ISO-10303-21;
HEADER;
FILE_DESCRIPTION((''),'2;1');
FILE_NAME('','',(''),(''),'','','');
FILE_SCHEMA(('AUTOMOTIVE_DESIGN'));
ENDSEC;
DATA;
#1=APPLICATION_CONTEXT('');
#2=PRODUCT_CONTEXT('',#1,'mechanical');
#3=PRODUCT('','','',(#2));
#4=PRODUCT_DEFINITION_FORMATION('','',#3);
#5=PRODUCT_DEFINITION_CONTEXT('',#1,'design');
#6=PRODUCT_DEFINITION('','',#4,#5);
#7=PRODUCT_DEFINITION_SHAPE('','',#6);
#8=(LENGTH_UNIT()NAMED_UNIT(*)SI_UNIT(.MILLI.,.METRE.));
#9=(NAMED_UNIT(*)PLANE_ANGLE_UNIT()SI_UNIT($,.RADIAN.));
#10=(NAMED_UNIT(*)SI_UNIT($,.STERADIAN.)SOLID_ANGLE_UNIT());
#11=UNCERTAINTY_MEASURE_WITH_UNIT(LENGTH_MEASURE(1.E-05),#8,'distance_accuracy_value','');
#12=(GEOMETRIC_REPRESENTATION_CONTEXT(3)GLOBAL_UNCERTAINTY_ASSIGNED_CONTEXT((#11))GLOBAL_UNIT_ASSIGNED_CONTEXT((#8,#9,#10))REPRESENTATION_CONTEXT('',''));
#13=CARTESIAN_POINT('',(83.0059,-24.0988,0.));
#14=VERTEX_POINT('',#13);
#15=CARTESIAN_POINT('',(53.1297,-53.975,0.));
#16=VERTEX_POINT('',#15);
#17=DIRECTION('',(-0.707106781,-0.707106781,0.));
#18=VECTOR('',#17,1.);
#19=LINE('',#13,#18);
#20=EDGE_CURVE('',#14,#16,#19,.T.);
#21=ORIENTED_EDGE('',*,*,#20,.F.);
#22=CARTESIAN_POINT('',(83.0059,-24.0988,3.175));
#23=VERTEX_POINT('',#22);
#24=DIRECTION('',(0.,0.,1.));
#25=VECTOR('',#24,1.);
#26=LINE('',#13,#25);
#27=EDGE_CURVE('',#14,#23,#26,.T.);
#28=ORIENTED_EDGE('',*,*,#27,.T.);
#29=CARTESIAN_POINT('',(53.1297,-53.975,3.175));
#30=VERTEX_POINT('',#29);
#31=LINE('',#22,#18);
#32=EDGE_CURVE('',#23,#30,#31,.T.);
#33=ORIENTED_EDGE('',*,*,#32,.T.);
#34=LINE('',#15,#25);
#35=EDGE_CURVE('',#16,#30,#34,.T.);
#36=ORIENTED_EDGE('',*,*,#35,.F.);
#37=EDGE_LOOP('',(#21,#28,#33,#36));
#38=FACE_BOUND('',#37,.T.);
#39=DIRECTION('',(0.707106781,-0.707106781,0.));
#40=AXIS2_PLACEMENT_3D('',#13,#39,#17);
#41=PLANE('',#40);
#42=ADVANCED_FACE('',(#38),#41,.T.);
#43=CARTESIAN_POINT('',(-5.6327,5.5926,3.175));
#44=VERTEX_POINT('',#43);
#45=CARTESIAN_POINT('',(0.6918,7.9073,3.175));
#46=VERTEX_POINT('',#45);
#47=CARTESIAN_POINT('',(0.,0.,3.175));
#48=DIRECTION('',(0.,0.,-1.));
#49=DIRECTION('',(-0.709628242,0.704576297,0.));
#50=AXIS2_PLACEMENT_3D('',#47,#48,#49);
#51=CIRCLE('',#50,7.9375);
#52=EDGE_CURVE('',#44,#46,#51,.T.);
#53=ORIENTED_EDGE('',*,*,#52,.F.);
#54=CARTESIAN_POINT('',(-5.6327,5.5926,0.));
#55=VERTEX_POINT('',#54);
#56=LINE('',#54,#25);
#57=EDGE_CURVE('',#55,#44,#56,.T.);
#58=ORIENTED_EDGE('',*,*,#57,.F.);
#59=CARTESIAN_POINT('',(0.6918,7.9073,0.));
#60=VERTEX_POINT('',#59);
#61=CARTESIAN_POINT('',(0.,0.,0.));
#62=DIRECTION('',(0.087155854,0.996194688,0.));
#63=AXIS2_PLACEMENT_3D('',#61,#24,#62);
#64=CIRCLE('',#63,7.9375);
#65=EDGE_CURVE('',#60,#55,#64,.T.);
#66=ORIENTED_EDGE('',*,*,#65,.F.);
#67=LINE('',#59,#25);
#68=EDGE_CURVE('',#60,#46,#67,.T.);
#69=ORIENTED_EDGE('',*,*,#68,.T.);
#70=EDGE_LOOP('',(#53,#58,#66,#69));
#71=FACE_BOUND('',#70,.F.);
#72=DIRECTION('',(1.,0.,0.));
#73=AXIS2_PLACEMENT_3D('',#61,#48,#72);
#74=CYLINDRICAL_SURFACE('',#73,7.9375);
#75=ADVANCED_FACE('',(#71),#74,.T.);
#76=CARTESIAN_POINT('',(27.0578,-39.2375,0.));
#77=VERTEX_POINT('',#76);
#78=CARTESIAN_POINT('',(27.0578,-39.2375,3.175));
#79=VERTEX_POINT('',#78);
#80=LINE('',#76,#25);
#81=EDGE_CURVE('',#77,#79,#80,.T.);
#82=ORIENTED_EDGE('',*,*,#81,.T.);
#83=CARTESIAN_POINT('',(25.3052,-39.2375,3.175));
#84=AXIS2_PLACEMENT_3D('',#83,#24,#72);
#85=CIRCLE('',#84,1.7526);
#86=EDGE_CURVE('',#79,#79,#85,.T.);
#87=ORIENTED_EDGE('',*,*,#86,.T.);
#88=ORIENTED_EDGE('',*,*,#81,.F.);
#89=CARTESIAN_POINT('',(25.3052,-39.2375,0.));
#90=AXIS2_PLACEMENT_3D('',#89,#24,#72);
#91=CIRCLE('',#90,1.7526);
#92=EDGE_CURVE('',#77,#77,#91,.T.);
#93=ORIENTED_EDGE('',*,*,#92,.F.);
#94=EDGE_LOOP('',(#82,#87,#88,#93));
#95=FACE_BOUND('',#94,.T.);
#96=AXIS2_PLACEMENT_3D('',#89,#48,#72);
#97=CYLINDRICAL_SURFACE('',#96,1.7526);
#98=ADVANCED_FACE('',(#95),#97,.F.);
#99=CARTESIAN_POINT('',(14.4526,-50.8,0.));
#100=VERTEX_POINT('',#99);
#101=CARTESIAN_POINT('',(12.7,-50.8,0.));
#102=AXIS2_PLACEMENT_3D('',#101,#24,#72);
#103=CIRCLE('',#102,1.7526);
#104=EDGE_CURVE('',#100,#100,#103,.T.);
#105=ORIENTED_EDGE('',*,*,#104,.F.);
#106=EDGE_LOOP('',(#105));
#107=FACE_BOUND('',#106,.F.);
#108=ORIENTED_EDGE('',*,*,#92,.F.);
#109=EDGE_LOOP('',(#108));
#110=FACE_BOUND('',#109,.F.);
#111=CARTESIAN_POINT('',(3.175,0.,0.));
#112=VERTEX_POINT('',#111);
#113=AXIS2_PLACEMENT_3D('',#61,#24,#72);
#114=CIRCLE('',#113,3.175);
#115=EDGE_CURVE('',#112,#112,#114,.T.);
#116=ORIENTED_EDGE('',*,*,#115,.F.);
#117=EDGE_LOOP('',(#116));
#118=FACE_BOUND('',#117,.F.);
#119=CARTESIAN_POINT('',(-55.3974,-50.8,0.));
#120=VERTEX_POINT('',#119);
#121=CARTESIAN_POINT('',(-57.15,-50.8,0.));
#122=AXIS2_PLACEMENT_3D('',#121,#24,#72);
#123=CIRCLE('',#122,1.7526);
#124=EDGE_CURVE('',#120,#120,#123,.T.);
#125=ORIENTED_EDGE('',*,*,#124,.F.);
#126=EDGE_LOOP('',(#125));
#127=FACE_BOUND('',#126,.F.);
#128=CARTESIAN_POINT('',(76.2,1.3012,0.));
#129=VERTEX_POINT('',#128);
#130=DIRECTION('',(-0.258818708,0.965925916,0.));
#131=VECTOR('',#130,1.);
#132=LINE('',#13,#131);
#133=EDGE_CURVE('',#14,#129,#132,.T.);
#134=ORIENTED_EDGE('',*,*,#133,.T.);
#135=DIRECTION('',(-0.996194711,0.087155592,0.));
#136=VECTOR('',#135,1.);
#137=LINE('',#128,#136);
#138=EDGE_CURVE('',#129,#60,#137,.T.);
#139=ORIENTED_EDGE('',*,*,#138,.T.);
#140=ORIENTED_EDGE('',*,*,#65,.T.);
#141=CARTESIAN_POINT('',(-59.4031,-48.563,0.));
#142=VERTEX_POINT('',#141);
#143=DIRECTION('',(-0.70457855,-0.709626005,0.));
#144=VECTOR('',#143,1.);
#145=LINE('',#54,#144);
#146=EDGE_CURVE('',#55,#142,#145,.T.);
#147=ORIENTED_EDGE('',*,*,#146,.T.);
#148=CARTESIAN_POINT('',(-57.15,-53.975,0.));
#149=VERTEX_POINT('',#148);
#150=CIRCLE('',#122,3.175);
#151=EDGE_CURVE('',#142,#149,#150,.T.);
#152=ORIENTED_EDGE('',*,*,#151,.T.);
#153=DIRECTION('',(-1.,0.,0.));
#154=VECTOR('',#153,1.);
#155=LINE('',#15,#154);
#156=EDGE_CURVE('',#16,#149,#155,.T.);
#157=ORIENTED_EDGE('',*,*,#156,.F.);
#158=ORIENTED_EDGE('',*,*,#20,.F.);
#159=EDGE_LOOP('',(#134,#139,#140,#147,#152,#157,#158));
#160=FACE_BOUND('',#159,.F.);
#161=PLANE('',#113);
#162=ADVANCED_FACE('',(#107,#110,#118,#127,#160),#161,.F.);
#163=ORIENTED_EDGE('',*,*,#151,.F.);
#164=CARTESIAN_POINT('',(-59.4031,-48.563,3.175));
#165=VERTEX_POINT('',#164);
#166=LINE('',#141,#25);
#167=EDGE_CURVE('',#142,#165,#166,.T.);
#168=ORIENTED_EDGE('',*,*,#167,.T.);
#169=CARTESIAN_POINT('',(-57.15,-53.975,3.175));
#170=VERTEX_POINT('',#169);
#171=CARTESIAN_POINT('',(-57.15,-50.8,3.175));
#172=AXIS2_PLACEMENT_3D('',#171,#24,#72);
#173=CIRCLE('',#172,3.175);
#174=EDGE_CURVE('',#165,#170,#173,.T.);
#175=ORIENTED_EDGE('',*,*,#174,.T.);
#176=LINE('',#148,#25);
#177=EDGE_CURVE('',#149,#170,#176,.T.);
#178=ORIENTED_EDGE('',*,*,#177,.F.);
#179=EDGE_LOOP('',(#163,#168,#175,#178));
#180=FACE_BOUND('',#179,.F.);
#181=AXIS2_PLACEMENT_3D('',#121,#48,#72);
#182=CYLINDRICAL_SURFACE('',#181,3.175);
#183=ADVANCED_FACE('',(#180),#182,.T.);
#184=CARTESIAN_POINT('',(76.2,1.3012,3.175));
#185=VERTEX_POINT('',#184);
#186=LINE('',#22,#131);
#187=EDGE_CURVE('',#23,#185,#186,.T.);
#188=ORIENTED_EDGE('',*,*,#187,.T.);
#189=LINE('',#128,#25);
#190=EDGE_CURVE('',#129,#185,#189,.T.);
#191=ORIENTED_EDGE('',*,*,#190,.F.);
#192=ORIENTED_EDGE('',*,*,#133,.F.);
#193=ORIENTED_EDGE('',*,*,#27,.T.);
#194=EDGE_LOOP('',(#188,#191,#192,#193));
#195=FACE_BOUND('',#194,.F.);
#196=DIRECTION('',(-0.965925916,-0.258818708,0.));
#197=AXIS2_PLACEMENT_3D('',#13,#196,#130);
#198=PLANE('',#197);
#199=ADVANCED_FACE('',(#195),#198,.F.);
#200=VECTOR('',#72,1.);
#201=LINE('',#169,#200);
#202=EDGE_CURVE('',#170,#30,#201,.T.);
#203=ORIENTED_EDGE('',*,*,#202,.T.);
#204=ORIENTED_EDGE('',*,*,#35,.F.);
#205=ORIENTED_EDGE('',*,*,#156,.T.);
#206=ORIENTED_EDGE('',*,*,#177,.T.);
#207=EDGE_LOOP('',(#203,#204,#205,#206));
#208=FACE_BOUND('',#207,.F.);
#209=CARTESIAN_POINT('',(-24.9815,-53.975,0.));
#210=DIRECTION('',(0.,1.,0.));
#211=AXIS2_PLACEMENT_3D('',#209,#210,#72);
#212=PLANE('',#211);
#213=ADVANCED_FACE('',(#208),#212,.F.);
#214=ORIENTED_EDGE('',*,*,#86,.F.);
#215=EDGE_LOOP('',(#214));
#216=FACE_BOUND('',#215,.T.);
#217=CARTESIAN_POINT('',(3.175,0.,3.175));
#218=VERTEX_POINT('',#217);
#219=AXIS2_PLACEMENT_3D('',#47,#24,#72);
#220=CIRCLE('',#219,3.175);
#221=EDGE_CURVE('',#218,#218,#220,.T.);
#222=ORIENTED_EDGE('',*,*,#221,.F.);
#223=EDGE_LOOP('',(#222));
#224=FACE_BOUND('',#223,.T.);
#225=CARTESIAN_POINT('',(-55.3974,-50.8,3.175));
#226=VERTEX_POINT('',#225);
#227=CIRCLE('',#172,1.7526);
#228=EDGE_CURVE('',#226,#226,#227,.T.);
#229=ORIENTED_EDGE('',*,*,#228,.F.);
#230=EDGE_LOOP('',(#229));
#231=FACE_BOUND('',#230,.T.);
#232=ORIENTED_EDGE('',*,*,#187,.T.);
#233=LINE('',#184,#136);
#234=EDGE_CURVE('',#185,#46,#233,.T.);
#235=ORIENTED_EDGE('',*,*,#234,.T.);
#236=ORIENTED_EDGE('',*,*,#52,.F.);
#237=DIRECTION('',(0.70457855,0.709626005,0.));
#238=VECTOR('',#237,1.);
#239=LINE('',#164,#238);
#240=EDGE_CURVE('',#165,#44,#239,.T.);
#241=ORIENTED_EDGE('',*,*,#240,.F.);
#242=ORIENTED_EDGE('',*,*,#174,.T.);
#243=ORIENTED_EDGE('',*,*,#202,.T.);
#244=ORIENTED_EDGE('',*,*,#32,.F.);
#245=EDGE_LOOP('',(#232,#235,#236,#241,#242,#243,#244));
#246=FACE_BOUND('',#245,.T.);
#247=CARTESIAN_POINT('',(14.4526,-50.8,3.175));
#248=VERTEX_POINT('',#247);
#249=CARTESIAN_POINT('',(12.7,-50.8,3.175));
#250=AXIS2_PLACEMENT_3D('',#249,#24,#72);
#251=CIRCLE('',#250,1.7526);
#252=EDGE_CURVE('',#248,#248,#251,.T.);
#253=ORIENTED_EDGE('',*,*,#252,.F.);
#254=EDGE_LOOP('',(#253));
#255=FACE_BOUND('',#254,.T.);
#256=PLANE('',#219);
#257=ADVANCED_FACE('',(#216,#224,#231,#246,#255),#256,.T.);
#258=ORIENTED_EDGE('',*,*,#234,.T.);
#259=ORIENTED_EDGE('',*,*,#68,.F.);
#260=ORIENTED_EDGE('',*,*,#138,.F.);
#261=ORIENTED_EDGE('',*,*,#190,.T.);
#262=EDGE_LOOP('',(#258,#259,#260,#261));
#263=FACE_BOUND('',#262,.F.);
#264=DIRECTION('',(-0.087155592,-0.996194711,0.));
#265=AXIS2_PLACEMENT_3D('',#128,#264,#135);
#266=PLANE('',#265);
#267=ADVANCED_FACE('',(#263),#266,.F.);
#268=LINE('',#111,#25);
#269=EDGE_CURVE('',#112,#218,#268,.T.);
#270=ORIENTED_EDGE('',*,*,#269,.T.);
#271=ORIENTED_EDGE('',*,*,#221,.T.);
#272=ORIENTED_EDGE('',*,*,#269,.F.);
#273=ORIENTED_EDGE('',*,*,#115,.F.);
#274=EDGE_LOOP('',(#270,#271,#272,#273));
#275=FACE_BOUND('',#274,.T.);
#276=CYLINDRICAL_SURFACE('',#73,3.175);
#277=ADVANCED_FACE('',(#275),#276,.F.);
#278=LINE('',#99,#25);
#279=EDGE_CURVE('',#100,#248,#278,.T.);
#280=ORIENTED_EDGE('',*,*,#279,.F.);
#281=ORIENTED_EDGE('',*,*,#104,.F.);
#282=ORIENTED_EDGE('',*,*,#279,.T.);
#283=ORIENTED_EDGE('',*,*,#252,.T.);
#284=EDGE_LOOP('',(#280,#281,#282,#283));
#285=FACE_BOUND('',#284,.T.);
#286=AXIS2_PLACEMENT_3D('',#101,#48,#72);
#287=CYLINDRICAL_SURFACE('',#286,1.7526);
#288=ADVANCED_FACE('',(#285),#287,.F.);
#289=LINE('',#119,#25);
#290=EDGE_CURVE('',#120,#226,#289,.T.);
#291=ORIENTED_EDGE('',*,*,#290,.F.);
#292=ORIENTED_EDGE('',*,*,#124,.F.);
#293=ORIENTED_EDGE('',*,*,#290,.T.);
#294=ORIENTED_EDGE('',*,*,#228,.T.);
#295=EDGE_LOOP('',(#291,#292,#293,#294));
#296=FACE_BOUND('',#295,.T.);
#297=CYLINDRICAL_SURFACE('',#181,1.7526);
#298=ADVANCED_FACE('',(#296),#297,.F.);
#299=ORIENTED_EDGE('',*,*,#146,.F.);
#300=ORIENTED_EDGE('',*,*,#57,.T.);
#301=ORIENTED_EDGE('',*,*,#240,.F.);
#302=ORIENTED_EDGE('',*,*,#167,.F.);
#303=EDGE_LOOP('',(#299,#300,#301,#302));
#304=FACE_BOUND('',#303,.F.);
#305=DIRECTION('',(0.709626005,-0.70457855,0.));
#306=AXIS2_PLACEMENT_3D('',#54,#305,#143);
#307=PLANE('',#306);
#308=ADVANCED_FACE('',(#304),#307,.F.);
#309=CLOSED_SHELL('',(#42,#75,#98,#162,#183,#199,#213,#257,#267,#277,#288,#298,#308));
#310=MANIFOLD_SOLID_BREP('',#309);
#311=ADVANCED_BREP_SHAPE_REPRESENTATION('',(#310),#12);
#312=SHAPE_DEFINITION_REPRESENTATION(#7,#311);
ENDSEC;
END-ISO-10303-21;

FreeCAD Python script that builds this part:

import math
import FreeCAD as App
import Part
import Sketcher
Q = App.Units.Quantity

doc = App.newDocument("Part")
params = doc.addObject("Spreadsheet::Sheet", "Params")
for row, (alias, value) in enumerate([
    ("sketch1_diameter", "0.25 in"),
    ("sketch1_diameter2", "0.138 in"),
    ("sketch1_radius", "0.3125 in"),
    ("pad1_length", "0.125 in"),
], start=1):
    params.set(f"A{row}", alias)
    params.set(f"B{row}", "=" + value)
    params.setAlias(f"B{row}", alias)

body = doc.addObject("PartDesign::Body", "Body")

# Sketch on XY plane
sketch1 = body.newObject("Sketcher::SketchObject", "Sketch")
sketch1.AttachmentSupport = (doc.getObject("XY_Plane"), [""])
sketch1.MapMode = "FlatFace"
sketch1.addGeometry([
    Part.LineSegment(App.Vector(-5.6, 5.6, 0), App.Vector(-59.4, -48.6, 0)),  # 0
    Part.ArcOfCircle(Part.Circle(App.Vector(-57.1, -50.8, 0), App.Vector(0, 0, 1), 3.2), math.radians(135), math.radians(270)),  # 1
    Part.LineSegment(App.Vector(-57.1, -54, 0), App.Vector(53.1, -54, 0)),  # 2
    Part.LineSegment(App.Vector(53.1, -54, 0), App.Vector(83, -24.1, 0)),  # 3
    Part.LineSegment(App.Vector(83, -24.1, 0), App.Vector(76.2, 1.3, 0)),  # 4
    Part.LineSegment(App.Vector(76.2, 1.3, 0), App.Vector(0.7, 7.9, 0)),  # 5
    Part.ArcOfCircle(Part.Circle(App.Vector(0, 0, 0), App.Vector(0, 0, 1), 7.9), math.radians(85), math.radians(135)),  # 6
    Part.Circle(App.Vector(0, 0, 0), App.Vector(0, 0, 1), 3.2),  # 7
    Part.Circle(App.Vector(25.3, -39.2, 0), App.Vector(0, 0, 1), 1.8),  # 8
    Part.Circle(App.Vector(12.7, -50.8, 0), App.Vector(0, 0, 1), 1.8),  # 9
    Part.Circle(App.Vector(-57.1, -50.8, 0), App.Vector(0, 0, 1), 1.8),  # 10
], False)
sketch1.addConstraint([
    Sketcher.Constraint("Tangent", 0, 2, 1, 1),
    Sketcher.Constraint("Tangent", 1, 2, 2, 1),
    Sketcher.Constraint("Coincident", 2, 2, 3, 1),
    Sketcher.Constraint("Coincident", 3, 2, 4, 1),
    Sketcher.Constraint("Coincident", 4, 2, 5, 1),
    Sketcher.Constraint("Tangent", 5, 2, 6, 1),
    Sketcher.Constraint("Tangent", 6, 2, 0, 1),
    Sketcher.Constraint("Horizontal", 2),
    Sketcher.Constraint("Coincident", 6, 3, -1, 1),
    Sketcher.Constraint("Coincident", 7, 3, -1, 1),
    Sketcher.Constraint("Coincident", 10, 3, 1, 3),
    Sketcher.Constraint("Equal", 1, 7),
    Sketcher.Constraint("Equal", 8, 9),
    Sketcher.Constraint("Equal", 9, 10),
    Sketcher.Constraint("Horizontal", 1, 3, 9, 3),
    Sketcher.Constraint("Diameter", 7, Q("0.25 in")),
    Sketcher.Constraint("Diameter", 8, Q("0.138 in")),
    Sketcher.Constraint("DistanceX", -1, 1, 4, 2, Q("3 in")),
    Sketcher.Constraint("Angle", 4, Q("105 deg")),
    Sketcher.Constraint("Radius", 6, Q("0.3125 in")),
    Sketcher.Constraint("DistanceY", 3, 2, 4, 2, Q("1 in")),
    Sketcher.Constraint("DistanceX", -1, 1, 9, 3, Q("0.5 in")),
    Sketcher.Constraint("DistanceX", 1, 3, -1, 1, Q("2.25 in")),
    Sketcher.Constraint("DistanceY", 1, 3, -1, 1, Q("2 in")),
    Sketcher.Constraint("Angle", 3, Q("45 deg")),
    Sketcher.Constraint("Angle", 5, Q("175 deg")),
    Sketcher.Constraint("DistanceY", 8, 3, 3, 2, Q("0.596 in")),
    Sketcher.Constraint("DistanceX", -1, 1, 8, 3, Q("25.3052 mm")),
])
sketch1.setExpression("Constraints[15]", "Params.sketch1_diameter")
sketch1.setExpression("Constraints[16]", "Params.sketch1_diameter2")
sketch1.setExpression("Constraints[19]", "Params.sketch1_radius")
pad1 = body.newObject("PartDesign::Pad", "Pad")
pad1.Profile = sketch1
pad1.setExpression("Length", "Params.pad1_length")

doc.recompute()
